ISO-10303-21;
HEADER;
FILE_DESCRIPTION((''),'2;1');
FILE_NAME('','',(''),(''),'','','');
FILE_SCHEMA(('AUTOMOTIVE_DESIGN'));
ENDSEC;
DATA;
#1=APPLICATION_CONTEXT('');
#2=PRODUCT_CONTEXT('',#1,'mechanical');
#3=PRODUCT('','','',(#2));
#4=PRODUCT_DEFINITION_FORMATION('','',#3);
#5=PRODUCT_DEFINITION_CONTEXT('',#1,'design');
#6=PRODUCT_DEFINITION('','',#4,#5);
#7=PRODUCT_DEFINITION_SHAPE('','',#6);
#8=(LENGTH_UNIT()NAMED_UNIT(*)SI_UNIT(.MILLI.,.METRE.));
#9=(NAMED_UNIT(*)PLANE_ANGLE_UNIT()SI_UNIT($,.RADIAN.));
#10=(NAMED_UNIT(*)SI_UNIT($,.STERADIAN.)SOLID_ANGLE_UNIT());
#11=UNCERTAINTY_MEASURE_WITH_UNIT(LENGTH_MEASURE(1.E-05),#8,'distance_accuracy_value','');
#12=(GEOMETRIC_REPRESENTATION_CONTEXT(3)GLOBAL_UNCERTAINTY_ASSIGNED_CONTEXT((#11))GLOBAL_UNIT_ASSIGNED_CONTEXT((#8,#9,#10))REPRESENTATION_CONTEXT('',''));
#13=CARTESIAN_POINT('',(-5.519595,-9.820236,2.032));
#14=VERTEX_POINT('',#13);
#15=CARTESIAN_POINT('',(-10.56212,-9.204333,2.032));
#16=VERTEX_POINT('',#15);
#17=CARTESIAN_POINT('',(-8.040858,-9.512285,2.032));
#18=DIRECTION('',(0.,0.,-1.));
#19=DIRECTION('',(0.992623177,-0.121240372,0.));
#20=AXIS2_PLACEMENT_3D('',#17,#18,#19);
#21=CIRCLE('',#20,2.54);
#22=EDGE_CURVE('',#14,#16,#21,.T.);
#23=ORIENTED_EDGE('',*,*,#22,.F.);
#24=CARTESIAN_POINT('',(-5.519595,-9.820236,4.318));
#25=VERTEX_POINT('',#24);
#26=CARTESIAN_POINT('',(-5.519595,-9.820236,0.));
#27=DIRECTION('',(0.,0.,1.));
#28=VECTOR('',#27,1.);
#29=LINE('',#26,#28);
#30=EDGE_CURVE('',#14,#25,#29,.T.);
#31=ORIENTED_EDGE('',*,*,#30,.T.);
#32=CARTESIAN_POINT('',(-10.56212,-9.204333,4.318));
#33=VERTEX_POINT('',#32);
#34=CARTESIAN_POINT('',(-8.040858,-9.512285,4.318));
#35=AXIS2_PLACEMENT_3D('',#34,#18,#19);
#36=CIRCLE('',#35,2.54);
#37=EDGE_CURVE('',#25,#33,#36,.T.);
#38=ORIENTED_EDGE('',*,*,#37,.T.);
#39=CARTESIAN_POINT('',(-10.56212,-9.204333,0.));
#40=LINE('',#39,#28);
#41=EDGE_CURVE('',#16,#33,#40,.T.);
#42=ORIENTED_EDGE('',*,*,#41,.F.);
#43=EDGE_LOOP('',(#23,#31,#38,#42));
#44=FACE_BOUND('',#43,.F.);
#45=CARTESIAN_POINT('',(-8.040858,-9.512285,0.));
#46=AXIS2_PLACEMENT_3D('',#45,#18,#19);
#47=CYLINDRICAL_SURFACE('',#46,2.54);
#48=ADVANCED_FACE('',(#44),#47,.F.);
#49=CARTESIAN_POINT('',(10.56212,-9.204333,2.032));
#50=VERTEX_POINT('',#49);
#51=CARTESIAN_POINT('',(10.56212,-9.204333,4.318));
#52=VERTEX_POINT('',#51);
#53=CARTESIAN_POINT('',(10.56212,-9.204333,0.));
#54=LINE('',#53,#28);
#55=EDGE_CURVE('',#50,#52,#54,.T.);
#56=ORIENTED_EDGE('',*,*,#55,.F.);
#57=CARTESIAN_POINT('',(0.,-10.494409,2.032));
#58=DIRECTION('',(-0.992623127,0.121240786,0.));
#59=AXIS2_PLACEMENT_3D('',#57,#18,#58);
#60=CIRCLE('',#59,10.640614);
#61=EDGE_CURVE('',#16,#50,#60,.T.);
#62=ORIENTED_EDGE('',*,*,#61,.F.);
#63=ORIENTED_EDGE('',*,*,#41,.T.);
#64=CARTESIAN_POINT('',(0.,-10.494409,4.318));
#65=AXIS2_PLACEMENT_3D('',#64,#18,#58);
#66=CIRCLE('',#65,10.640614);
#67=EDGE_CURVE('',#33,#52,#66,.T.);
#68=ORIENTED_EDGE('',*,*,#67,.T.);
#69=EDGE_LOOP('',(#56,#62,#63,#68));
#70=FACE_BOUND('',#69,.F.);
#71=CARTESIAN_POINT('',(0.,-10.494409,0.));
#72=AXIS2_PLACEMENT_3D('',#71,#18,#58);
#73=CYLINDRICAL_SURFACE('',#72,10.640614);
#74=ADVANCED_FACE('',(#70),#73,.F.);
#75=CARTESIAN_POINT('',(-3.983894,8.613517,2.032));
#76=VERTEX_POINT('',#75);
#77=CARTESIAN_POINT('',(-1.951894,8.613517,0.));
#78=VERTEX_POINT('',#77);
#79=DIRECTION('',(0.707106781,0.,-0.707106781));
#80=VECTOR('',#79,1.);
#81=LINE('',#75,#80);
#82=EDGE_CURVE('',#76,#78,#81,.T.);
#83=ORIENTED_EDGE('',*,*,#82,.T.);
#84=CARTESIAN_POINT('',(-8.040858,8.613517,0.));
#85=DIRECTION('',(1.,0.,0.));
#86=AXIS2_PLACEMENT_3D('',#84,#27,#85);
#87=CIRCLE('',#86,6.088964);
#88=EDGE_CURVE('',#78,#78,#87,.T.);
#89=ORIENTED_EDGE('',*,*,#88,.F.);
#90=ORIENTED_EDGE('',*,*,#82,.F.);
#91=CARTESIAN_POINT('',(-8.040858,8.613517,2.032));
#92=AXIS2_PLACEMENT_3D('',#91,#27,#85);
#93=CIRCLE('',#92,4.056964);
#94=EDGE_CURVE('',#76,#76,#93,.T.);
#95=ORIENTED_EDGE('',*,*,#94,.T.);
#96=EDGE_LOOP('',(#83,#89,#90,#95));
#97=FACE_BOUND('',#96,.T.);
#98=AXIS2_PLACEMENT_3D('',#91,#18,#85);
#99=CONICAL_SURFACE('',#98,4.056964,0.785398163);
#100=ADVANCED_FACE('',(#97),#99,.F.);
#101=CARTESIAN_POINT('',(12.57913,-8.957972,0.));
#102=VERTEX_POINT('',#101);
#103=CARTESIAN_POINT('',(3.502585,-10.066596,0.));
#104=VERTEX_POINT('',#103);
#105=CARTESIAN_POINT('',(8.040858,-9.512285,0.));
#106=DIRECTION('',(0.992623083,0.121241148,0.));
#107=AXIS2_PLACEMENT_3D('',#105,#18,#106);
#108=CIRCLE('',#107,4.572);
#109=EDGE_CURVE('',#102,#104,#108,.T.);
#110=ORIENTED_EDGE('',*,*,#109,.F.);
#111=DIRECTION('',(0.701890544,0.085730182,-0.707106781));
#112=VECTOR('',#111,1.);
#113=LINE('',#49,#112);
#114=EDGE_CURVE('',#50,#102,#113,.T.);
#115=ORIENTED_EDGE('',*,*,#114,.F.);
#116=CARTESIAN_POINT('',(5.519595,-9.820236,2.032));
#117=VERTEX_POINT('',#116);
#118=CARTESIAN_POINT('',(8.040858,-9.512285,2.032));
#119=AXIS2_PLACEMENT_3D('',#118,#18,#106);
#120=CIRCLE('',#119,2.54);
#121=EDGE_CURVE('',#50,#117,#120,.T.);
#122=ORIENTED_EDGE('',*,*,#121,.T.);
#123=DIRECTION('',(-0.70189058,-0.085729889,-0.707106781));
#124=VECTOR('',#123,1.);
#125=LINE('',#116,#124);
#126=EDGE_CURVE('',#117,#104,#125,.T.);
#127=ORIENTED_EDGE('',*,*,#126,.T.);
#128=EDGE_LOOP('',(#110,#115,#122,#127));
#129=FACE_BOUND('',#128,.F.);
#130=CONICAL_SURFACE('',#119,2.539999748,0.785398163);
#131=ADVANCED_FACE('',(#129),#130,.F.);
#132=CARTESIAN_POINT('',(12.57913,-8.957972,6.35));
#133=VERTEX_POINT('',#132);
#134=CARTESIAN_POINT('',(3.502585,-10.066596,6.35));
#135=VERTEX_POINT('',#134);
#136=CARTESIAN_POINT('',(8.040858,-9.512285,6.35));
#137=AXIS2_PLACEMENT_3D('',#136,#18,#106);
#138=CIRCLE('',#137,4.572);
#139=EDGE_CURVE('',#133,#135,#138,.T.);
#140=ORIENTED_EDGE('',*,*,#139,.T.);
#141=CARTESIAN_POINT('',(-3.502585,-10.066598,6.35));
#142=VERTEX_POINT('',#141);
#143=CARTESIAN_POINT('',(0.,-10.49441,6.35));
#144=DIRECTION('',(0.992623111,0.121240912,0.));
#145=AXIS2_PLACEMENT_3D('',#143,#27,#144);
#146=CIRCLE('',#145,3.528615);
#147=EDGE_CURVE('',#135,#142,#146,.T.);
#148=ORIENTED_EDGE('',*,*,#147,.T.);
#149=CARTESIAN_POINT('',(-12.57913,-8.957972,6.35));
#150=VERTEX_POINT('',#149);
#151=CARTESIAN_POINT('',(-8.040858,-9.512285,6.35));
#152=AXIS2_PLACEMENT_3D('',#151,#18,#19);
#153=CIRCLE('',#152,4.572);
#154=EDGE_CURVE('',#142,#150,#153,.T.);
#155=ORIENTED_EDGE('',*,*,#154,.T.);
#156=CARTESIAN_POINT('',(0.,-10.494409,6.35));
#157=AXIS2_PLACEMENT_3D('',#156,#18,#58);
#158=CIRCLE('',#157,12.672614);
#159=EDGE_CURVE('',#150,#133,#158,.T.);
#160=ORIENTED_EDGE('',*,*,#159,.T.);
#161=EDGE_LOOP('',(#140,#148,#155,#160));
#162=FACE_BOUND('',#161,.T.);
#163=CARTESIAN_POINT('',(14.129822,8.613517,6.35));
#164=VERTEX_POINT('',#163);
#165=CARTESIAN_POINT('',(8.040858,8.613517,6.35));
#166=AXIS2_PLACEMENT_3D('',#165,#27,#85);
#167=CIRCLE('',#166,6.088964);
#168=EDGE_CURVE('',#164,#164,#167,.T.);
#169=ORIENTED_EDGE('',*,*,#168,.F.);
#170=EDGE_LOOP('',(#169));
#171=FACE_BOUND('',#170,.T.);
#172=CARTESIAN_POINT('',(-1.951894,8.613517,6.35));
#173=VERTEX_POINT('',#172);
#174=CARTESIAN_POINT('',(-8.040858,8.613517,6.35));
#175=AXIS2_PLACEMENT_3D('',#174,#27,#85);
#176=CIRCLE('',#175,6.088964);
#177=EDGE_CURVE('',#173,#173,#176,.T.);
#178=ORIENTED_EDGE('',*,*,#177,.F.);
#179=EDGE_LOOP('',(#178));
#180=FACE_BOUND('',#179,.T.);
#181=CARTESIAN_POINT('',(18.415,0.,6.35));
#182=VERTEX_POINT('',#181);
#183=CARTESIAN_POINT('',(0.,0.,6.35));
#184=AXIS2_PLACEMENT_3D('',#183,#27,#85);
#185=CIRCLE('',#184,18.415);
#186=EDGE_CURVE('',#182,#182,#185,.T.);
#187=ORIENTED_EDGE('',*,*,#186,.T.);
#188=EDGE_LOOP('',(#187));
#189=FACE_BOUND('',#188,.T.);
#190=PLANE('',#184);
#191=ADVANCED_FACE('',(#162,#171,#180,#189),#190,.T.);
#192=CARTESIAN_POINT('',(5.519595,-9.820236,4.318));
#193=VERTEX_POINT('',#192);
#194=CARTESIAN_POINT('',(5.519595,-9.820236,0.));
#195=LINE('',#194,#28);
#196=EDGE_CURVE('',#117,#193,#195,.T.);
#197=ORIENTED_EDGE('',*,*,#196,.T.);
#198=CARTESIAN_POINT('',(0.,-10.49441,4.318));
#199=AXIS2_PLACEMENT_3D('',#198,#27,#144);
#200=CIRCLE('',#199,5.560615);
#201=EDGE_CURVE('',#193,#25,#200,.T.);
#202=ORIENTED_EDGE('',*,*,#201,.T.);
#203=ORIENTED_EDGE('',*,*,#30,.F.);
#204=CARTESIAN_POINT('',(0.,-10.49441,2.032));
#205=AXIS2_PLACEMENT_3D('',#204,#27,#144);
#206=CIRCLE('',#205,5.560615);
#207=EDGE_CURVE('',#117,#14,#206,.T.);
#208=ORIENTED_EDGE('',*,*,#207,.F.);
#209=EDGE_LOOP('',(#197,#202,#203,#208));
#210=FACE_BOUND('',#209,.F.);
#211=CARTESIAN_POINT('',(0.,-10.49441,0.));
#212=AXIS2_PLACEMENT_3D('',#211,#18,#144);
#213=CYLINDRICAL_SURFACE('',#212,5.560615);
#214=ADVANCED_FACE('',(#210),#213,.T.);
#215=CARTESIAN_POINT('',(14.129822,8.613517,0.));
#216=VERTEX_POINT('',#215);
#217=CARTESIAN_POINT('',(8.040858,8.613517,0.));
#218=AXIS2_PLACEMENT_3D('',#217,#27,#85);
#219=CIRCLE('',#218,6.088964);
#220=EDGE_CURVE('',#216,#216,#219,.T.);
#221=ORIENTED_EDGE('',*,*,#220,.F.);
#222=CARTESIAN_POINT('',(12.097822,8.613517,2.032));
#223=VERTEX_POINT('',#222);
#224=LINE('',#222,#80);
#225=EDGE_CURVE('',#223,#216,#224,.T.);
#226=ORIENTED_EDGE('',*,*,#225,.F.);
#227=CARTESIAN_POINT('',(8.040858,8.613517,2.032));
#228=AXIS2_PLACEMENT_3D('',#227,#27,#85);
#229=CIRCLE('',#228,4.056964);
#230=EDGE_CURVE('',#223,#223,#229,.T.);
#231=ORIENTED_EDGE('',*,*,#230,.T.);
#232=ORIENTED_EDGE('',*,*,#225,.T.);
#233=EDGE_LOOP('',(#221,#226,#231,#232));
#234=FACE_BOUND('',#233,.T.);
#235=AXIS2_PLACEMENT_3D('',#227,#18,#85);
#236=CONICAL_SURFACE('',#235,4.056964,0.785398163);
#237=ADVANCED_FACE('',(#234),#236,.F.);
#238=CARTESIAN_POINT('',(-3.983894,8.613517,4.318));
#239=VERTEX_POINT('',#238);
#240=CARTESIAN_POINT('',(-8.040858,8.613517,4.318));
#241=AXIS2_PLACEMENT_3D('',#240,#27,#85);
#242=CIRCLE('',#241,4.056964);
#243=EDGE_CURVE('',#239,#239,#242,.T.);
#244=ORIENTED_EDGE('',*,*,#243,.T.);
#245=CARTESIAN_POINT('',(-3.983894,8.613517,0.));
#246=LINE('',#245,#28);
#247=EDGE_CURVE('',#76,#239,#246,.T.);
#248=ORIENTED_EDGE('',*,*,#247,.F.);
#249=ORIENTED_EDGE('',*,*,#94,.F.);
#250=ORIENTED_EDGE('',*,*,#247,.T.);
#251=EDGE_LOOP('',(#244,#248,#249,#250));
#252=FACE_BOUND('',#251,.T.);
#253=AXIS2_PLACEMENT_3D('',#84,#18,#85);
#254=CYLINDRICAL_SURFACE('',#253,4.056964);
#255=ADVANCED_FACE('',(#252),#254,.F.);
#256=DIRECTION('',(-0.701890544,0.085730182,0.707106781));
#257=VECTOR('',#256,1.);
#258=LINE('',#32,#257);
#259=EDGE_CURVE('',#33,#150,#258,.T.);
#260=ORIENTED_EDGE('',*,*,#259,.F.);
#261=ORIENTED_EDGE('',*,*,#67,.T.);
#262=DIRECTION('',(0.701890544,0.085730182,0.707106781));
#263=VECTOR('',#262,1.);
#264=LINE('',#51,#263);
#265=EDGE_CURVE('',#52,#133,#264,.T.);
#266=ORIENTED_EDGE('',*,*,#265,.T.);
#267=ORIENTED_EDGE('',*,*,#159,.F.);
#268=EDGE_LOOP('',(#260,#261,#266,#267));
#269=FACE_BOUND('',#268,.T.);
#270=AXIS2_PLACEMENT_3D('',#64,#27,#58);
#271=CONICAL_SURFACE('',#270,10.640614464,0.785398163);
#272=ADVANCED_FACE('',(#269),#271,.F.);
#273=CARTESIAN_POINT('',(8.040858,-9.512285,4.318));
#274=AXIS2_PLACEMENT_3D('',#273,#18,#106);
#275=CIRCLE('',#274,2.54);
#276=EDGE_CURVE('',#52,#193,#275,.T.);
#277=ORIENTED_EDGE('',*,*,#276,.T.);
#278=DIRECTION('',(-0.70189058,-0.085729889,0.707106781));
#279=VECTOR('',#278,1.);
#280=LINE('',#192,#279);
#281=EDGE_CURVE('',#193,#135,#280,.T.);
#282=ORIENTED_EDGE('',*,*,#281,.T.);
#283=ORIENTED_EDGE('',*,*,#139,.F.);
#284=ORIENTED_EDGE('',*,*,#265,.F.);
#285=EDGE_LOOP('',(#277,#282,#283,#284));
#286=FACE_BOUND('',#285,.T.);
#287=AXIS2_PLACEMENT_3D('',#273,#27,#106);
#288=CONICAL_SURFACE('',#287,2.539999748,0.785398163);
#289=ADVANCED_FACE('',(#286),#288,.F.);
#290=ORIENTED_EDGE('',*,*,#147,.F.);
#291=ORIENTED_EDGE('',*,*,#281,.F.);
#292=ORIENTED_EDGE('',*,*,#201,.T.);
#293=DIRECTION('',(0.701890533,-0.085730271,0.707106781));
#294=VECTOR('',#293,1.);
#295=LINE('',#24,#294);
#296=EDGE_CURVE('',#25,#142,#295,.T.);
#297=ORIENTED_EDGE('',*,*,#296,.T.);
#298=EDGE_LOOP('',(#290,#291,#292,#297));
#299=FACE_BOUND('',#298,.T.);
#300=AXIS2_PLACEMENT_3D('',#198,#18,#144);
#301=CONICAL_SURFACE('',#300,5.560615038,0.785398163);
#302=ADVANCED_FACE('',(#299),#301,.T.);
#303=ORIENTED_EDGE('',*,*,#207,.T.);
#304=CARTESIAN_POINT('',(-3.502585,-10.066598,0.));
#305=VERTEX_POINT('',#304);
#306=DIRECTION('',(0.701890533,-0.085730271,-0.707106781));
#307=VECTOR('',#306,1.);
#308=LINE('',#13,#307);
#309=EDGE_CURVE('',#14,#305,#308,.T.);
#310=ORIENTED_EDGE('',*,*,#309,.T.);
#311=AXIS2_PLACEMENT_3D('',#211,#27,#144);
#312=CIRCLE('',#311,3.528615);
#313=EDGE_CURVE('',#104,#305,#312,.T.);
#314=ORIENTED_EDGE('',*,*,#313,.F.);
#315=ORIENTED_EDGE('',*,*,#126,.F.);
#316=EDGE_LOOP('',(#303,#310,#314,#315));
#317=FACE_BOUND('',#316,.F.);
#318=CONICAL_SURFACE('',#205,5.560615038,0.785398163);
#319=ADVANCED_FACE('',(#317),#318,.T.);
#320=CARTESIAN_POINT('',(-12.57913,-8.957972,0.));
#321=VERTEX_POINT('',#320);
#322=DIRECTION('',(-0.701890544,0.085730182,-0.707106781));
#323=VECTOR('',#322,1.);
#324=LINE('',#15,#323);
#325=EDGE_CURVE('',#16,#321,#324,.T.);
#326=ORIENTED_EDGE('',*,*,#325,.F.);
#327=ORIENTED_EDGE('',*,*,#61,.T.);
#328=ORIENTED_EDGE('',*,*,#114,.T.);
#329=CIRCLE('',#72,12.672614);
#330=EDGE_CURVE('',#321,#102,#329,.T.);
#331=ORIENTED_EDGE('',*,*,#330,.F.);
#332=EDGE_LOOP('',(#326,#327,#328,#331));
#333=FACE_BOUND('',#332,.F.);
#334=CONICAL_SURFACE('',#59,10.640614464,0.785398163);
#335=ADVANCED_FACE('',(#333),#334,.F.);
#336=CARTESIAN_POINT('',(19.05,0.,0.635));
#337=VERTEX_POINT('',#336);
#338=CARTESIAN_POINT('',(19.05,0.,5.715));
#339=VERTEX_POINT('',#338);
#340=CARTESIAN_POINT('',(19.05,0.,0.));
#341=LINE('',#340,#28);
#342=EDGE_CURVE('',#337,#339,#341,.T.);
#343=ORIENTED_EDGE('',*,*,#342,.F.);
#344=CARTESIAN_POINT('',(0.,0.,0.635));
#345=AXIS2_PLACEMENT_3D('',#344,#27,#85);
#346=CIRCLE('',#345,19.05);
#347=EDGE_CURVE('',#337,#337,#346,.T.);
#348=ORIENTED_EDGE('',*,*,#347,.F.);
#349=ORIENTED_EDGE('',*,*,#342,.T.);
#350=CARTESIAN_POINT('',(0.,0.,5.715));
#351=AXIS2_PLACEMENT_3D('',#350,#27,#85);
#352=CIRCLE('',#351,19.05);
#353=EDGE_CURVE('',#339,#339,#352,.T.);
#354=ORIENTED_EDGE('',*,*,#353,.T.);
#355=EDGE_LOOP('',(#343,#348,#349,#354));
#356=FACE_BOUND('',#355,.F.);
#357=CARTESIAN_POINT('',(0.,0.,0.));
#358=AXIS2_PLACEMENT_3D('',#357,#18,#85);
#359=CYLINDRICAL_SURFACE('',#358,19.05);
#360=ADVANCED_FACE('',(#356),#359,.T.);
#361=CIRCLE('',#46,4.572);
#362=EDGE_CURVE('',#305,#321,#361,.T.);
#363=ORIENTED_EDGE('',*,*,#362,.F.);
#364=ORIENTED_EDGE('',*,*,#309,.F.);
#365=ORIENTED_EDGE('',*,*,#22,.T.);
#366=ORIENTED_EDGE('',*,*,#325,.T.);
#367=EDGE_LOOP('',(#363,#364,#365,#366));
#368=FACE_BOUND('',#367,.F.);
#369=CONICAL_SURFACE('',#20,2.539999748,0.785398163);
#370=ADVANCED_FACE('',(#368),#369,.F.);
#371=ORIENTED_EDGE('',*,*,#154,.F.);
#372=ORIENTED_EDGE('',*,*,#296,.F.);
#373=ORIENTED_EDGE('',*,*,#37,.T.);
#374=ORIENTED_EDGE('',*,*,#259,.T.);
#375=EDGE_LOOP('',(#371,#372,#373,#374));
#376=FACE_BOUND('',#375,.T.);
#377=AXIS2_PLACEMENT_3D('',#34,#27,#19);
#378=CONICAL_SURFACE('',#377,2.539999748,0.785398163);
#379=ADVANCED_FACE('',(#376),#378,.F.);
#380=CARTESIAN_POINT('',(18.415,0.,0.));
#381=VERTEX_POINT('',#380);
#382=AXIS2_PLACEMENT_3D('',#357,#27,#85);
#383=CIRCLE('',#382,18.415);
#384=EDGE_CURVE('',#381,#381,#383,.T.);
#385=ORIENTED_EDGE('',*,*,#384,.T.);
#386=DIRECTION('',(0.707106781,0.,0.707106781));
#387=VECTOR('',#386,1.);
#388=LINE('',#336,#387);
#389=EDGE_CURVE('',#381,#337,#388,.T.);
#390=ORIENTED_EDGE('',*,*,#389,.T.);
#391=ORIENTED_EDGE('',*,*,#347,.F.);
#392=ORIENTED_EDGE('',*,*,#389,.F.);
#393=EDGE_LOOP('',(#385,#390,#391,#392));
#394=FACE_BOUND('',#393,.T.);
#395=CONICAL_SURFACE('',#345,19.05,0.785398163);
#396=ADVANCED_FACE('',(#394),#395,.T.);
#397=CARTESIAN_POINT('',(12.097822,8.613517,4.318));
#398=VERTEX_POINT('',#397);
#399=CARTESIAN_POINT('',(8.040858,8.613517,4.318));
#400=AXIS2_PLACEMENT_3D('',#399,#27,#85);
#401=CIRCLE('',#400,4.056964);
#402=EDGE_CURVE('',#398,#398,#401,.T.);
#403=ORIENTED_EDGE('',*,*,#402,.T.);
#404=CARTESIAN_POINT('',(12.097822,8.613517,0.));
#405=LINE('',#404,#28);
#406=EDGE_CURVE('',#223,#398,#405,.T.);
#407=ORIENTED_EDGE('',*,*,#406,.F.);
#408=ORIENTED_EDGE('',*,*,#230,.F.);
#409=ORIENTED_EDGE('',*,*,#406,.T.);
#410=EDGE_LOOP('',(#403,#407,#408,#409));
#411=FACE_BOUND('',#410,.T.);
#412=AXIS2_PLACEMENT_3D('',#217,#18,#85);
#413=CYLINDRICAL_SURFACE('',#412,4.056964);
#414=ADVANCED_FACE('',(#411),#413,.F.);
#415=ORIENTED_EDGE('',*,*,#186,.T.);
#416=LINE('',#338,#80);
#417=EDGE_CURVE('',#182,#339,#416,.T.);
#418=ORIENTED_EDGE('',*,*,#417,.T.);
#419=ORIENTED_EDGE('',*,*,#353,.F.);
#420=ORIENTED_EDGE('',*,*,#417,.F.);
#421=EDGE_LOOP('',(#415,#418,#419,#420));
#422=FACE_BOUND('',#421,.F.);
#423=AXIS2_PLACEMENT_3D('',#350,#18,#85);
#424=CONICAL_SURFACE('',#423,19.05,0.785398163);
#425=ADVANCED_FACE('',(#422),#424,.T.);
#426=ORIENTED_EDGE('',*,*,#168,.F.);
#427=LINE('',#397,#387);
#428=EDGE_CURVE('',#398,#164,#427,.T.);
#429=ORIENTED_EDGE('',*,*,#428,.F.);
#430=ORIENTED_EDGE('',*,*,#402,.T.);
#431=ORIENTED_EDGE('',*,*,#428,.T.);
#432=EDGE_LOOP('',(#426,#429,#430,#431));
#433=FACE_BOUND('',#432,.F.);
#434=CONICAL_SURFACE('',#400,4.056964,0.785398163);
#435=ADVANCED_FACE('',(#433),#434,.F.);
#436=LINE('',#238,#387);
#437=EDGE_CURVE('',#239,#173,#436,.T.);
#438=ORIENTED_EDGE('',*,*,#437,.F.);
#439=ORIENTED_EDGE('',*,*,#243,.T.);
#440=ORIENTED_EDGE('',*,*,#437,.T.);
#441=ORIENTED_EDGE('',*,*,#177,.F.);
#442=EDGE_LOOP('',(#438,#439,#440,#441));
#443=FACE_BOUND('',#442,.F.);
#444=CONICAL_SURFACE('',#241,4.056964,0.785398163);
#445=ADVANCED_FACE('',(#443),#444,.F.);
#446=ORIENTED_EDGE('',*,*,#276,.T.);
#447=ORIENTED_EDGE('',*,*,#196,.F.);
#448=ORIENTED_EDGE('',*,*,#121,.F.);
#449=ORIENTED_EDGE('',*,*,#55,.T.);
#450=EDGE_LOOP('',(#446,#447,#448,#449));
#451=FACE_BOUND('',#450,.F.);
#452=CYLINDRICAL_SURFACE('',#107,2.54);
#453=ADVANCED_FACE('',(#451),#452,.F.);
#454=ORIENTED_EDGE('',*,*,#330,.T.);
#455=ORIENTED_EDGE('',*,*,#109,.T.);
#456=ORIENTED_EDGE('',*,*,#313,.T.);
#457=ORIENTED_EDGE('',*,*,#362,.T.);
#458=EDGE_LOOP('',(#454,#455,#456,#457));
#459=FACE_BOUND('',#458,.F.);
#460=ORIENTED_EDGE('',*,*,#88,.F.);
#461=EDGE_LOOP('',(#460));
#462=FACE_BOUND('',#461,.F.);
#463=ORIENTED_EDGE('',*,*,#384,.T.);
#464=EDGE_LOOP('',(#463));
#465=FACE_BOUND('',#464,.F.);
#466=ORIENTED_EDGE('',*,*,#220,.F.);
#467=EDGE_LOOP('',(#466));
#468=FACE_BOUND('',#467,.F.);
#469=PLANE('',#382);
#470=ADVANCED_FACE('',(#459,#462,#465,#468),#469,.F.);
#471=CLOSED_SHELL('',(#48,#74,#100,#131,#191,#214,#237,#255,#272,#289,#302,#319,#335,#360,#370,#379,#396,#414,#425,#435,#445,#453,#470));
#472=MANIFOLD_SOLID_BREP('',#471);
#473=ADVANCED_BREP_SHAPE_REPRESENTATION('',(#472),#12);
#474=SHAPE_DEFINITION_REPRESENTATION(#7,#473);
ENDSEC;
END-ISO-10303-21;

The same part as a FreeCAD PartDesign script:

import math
import FreeCAD as App
import Part
import Sketcher
from FreeCAD import Vector
Q = App.Units.Quantity


def edges_at(feature, points):
    """Names of the edges that pass closest to the given points."""
    edges = feature.Shape.Edges
    near = lambda p: min(range(len(edges)), key=lambda i: edges[i].distToShape(Part.Vertex(*p))[0])
    return sorted({f"Edge{near(p) + 1}" for p in points})

doc = App.newDocument("Part")
params = doc.addObject("Spreadsheet::Sheet", "Params")
for row, (alias, value) in enumerate([
    ("sketch1_diameter", "1.5 in"),
    ("sketch1_radius", "0.1 in"),
    ("pad1_length", "0.25 in"),
    ("chamfer_size", "0.08 in"),
    ("chamfer2_size", "0.025 in"),
], start=1):
    params.set(f"A{row}", alias)
    params.set(f"B{row}", "=" + value)
    params.setAlias(f"B{row}", alias)

body = doc.addObject("PartDesign::Body", "Body")

# Sketch on XY plane
sketch1 = doc.addObject("Sketcher::SketchObject", "Sketch")
body.addObject(sketch1)
sketch1.AttachmentSupport = (doc.XY_Plane, [""])
sketch1.MapMode = "FlatFace"
sketch1.addGeometry([
    Part.Circle(Vector(0, 0, 0), Vector(0, 0, 1), 19.1),  # 0
    Part.ArcOfCircle(Part.Circle(Vector(-8, -9.5, 0), Vector(0, 0, 1), 2.5), math.radians(173), math.radians(353)),  # 1
    Part.ArcOfCircle(Part.Circle(Vector(0, -10.5, 0), Vector(0, 0, 1), 10.6), math.radians(7), math.radians(173)),  # 2
    Part.ArcOfCircle(Part.Circle(Vector(8, -9.5, 0), Vector(0, 0, 1), 2.5), math.radians(-173), math.radians(7)),  # 3
    Part.ArcOfCircle(Part.Circle(Vector(0, -10.5, 0), Vector(0, 0, 1), 5.6), math.radians(7), math.radians(173)),  # 4
    Part.Circle(Vector(-8, 8.6, 0), Vector(0, 0, 1), 4.1),  # 5
    Part.Circle(Vector(8, 8.6, 0), Vector(0, 0, 1), 4.1),  # 6
], False)
sketch1.addConstraint([
    Sketcher.Constraint("Tangent", 1, 1, 2, 2),
    Sketcher.Constraint("Tangent", 2, 1, 3, 2),
    Sketcher.Constraint("Tangent", 3, 1, 4, 1),
    Sketcher.Constraint("Tangent", 4, 2, 1, 2),
    Sketcher.Constraint("Coincident", 0, 3, -1, 1),
    Sketcher.Constraint("Coincident", 4, 3, 2, 3),
    Sketcher.Constraint("Equal", 5, 6),
    Sketcher.Constraint("Symmetric", 1, 3, 3, 3, -2),
    Sketcher.Constraint("Symmetric", 5, 3, 6, 3, -2),
    Sketcher.Constraint("Vertical", 1, 3, 5, 3),
    Sketcher.Constraint("Diameter", 0, Q("1.5 in")),
    Sketcher.Constraint("Radius", 1, Q("0.1 in")),
    Sketcher.Constraint("Diameter", 5, Q("8.113928 mm")),
    Sketcher.Constraint("Radius", 2, Q("10.640614 mm")),
    Sketcher.Constraint("DistanceY", 2, 3, -1, 1, Q("10.494409 mm")),
    Sketcher.Constraint("DistanceX", 1, 1, -1, 1, Q("10.56212 mm")),
    Sketcher.Constraint("DistanceY", 1, 1, 5, 3, Q("17.81785 mm")),
])
sketch1.setExpression("Constraints[10]", "Params.sketch1_diameter")
sketch1.setExpression("Constraints[11]", "Params.sketch1_radius")
pad1 = doc.addObject("PartDesign::Pad", "Pad")
body.addObject(pad1)
pad1.Profile = sketch1
pad1.setExpression("Length", "Params.pad1_length")
doc.recompute()

chamfer = doc.addObject("PartDesign::Chamfer", "Chamfer")
body.addObject(chamfer)
chamfer.Base = (pad1, edges_at(pad1, [
    (0, 0.146, 6.35),
    (0, 0.146, 0),
    (0, -4.934, 6.35),
    (8.349, -12.034, 6.35),
    (-8.349, -12.034, 6.35),
    (8.349, -12.034, 0),
    (0, -4.934, 0),
    (-8.349, -12.034, 0),
    (3.984, 8.614, 6.35),
    (3.984, 8.614, 0),
    (-12.098, 8.614, 0),
    (-12.098, 8.614, 6.35),
]))
chamfer.setExpression("Size", "Params.chamfer_size")
doc.recompute()

chamfer2 = doc.addObject("PartDesign::Chamfer", "Chamfer001")
body.addObject(chamfer2)
chamfer2.Base = (chamfer, edges_at(chamfer, [(-19.05, 0, 6.35), (-19.05, 0, 0)]))
chamfer2.setExpression("Size", "Params.chamfer2_size")

doc.recompute()
